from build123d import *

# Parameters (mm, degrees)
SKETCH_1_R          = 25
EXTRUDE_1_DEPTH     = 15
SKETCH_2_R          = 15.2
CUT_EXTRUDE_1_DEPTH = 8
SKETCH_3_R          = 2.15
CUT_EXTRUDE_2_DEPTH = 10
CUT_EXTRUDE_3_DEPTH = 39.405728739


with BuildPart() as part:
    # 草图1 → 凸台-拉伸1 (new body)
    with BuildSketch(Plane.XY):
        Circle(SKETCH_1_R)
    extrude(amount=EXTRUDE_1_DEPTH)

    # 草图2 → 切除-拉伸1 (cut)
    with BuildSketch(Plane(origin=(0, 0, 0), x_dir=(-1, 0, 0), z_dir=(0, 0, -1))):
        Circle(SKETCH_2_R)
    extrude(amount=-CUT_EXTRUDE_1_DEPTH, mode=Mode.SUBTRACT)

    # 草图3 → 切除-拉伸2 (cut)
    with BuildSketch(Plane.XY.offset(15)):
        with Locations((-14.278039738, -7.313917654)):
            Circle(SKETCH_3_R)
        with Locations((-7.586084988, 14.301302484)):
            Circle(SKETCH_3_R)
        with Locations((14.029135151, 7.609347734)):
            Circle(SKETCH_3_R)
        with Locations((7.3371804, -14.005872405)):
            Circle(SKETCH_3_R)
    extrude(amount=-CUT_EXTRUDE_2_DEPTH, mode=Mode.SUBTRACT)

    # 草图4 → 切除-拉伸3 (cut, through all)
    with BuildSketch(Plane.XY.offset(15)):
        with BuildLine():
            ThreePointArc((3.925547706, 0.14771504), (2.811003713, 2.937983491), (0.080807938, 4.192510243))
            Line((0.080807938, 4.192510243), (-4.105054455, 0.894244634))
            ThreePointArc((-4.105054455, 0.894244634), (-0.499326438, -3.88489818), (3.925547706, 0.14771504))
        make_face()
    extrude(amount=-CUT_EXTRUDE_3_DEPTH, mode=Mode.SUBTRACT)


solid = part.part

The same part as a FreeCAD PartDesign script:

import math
import FreeCAD as App
import Part
import Sketcher
from FreeCAD import Vector
Q = App.Units.Quantity

doc = App.newDocument("Part")
body = doc.addObject("PartDesign::Body", "Body")

# Sketch on XY plane
sketch1 = doc.addObject("Sketcher::SketchObject", "Sketch")
body.addObject(sketch1)
sketch1.AttachmentSupport = (doc.XY_Plane, [""])
sketch1.MapMode = "FlatFace"
sketch1.addGeometry(Part.Circle(Vector(0, 0, 0), Vector(0, 0, 1), 25), False)
sketch1.addConstraint([
    Sketcher.Constraint("Coincident", 0, 3, -1, 1),
    Sketcher.Constraint("Diameter", 0, Q("50 mm")),
])
pad1 = doc.addObject("PartDesign::Pad", "Pad")
body.addObject(pad1)
pad1.Profile = sketch1
pad1.Length = 15

# Sketch on XY plane
sketch2 = doc.addObject("Sketcher::SketchObject", "Sketch001")
body.addObject(sketch2)
sketch2.AttachmentSupport = (doc.XY_Plane, [""])
sketch2.MapMode = "FlatFace"
sketch2.addGeometry(Part.Circle(Vector(0, 0, 0), Vector(0, 0, 1), 15), False)
sketch2.addConstraint([
    Sketcher.Constraint("Coincident", 0, 3, -1, 1),
    Sketcher.Constraint("Diameter", 0, Q("30.4 mm")),
])
pocket1 = doc.addObject("PartDesign::Pocket", "Pocket")
body.addObject(pocket1)
pocket1.Profile = sketch2
pocket1.Length = 8
pocket1.Reversed = True

# Sketch on XY plane
sketch3 = doc.addObject("Sketcher::SketchObject", "Sketch002")
body.addObject(sketch3)
sketch3.AttachmentSupport = (doc.XY_Plane, [""])
sketch3.MapMode = "FlatFace"
sketch3.AttachmentOffset = App.Placement(Vector(0, 0, 15), App.Rotation())
sketch3.addGeometry([
    Part.Circle(Vector(-14.3, -7.3, 0), Vector(0, 0, 1), 2.1),
    Part.Circle(Vector(-7.6, 14.3, 0), Vector(0, 0, 1), 2.1),
    Part.Circle(Vector(14, 7.6, 0), Vector(0, 0, 1), 2.1),
    Part.Circle(Vector(7.3, -14, 0), Vector(0, 0, 1), 2.1),
], False)
sketch3.addConstraint([
    Sketcher.Constraint("Equal", 0, 1),
    Sketcher.Constraint("Equal", 1, 2),
    Sketcher.Constraint("Equal", 2, 3),
    Sketcher.Constraint("Diameter", 0, Q("4.3 mm")),
    Sketcher.Constraint("DistanceX", 0, 3, -1, 1, Q("14.27804 mm")),
    Sketcher.Constraint("DistanceX", -1, 1, 3, 3, Q("7.33718 mm")),
    Sketcher.Constraint("DistanceY", 0, 3, 1, 3, Q("21.61522 mm")),
    Sketcher.Constraint("DistanceX", 1, 3, 2, 3, Q("21.61522 mm")),
    Sketcher.Constraint("DistanceY", 3, 3, 2, 3, Q("21.61522 mm")),
    Sketcher.Constraint("DistanceY", 0, 3, -1, 1, Q("7.313918 mm")),
    Sketcher.Constraint("DistanceX", 1, 3, -1, 1, Q("7.586085 mm")),
    Sketcher.Constraint("DistanceY", -1, 1, 2, 3, Q("7.609348 mm")),
])
pocket2 = doc.addObject("PartDesign::Pocket", "Pocket001")
body.addObject(pocket2)
pocket2.Profile = sketch3
pocket2.Length = 10

# Sketch on XY plane
sketch4 = doc.addObject("Sketcher::SketchObject", "Sketch003")
body.addObject(sketch4)
sketch4.AttachmentSupport = (doc.XY_Plane, [""])
sketch4.MapMode = "FlatFace"
sketch4.AttachmentOffset = App.Placement(Vector(0, 0, 15), App.Rotation())
sketch4.addGeometry([
    Part.ArcOfCircle(Part.Circle(Vector(-0.1, 0.1, 0), Vector(0, 0, 1), 4), math.radians(0), math.radians(87)),
    Part.LineSegment(Vector(0.1, 4.2, 0), Vector(-4.1, 0.9, 0)),
    Part.ArcOfCircle(Part.Circle(Vector(-0.1, 0.1, 0), Vector(0, 0, 1), 4), math.radians(169), math.radians(360)),
], False)
sketch4.addConstraint([
    Sketcher.Constraint("Coincident", 0, 2, 1, 1),
    Sketcher.Constraint("Coincident", 1, 2, 2, 1),
    Sketcher.Constraint("Tangent", 2, 2, 0, 1),
    Sketcher.Constraint("Equal", 0, 2),
    Sketcher.Constraint("Horizontal", 0, 3, 2, 2),
    Sketcher.Constraint("Radius", 0, Q("4.05 mm")),
    Sketcher.Constraint("DistanceY", -1, 1, 0, 2, Q("4.19251 mm")),
    Sketcher.Constraint("DistanceX", 0, 3, 0, 2, Q("0.20526 mm")),
    Sketcher.Constraint("DistanceY", 0, 3, 1, 2, Q("0.74653 mm")),
    Sketcher.Constraint("DistanceX", 0, 3, -1, 1, Q("0.124452 mm")),
])
pocket3 = doc.addObject("PartDesign::Pocket", "Pocket002")
body.addObject(pocket3)
pocket3.Profile = sketch4
pocket3.Type = "ThroughAll"

doc.recompute()
